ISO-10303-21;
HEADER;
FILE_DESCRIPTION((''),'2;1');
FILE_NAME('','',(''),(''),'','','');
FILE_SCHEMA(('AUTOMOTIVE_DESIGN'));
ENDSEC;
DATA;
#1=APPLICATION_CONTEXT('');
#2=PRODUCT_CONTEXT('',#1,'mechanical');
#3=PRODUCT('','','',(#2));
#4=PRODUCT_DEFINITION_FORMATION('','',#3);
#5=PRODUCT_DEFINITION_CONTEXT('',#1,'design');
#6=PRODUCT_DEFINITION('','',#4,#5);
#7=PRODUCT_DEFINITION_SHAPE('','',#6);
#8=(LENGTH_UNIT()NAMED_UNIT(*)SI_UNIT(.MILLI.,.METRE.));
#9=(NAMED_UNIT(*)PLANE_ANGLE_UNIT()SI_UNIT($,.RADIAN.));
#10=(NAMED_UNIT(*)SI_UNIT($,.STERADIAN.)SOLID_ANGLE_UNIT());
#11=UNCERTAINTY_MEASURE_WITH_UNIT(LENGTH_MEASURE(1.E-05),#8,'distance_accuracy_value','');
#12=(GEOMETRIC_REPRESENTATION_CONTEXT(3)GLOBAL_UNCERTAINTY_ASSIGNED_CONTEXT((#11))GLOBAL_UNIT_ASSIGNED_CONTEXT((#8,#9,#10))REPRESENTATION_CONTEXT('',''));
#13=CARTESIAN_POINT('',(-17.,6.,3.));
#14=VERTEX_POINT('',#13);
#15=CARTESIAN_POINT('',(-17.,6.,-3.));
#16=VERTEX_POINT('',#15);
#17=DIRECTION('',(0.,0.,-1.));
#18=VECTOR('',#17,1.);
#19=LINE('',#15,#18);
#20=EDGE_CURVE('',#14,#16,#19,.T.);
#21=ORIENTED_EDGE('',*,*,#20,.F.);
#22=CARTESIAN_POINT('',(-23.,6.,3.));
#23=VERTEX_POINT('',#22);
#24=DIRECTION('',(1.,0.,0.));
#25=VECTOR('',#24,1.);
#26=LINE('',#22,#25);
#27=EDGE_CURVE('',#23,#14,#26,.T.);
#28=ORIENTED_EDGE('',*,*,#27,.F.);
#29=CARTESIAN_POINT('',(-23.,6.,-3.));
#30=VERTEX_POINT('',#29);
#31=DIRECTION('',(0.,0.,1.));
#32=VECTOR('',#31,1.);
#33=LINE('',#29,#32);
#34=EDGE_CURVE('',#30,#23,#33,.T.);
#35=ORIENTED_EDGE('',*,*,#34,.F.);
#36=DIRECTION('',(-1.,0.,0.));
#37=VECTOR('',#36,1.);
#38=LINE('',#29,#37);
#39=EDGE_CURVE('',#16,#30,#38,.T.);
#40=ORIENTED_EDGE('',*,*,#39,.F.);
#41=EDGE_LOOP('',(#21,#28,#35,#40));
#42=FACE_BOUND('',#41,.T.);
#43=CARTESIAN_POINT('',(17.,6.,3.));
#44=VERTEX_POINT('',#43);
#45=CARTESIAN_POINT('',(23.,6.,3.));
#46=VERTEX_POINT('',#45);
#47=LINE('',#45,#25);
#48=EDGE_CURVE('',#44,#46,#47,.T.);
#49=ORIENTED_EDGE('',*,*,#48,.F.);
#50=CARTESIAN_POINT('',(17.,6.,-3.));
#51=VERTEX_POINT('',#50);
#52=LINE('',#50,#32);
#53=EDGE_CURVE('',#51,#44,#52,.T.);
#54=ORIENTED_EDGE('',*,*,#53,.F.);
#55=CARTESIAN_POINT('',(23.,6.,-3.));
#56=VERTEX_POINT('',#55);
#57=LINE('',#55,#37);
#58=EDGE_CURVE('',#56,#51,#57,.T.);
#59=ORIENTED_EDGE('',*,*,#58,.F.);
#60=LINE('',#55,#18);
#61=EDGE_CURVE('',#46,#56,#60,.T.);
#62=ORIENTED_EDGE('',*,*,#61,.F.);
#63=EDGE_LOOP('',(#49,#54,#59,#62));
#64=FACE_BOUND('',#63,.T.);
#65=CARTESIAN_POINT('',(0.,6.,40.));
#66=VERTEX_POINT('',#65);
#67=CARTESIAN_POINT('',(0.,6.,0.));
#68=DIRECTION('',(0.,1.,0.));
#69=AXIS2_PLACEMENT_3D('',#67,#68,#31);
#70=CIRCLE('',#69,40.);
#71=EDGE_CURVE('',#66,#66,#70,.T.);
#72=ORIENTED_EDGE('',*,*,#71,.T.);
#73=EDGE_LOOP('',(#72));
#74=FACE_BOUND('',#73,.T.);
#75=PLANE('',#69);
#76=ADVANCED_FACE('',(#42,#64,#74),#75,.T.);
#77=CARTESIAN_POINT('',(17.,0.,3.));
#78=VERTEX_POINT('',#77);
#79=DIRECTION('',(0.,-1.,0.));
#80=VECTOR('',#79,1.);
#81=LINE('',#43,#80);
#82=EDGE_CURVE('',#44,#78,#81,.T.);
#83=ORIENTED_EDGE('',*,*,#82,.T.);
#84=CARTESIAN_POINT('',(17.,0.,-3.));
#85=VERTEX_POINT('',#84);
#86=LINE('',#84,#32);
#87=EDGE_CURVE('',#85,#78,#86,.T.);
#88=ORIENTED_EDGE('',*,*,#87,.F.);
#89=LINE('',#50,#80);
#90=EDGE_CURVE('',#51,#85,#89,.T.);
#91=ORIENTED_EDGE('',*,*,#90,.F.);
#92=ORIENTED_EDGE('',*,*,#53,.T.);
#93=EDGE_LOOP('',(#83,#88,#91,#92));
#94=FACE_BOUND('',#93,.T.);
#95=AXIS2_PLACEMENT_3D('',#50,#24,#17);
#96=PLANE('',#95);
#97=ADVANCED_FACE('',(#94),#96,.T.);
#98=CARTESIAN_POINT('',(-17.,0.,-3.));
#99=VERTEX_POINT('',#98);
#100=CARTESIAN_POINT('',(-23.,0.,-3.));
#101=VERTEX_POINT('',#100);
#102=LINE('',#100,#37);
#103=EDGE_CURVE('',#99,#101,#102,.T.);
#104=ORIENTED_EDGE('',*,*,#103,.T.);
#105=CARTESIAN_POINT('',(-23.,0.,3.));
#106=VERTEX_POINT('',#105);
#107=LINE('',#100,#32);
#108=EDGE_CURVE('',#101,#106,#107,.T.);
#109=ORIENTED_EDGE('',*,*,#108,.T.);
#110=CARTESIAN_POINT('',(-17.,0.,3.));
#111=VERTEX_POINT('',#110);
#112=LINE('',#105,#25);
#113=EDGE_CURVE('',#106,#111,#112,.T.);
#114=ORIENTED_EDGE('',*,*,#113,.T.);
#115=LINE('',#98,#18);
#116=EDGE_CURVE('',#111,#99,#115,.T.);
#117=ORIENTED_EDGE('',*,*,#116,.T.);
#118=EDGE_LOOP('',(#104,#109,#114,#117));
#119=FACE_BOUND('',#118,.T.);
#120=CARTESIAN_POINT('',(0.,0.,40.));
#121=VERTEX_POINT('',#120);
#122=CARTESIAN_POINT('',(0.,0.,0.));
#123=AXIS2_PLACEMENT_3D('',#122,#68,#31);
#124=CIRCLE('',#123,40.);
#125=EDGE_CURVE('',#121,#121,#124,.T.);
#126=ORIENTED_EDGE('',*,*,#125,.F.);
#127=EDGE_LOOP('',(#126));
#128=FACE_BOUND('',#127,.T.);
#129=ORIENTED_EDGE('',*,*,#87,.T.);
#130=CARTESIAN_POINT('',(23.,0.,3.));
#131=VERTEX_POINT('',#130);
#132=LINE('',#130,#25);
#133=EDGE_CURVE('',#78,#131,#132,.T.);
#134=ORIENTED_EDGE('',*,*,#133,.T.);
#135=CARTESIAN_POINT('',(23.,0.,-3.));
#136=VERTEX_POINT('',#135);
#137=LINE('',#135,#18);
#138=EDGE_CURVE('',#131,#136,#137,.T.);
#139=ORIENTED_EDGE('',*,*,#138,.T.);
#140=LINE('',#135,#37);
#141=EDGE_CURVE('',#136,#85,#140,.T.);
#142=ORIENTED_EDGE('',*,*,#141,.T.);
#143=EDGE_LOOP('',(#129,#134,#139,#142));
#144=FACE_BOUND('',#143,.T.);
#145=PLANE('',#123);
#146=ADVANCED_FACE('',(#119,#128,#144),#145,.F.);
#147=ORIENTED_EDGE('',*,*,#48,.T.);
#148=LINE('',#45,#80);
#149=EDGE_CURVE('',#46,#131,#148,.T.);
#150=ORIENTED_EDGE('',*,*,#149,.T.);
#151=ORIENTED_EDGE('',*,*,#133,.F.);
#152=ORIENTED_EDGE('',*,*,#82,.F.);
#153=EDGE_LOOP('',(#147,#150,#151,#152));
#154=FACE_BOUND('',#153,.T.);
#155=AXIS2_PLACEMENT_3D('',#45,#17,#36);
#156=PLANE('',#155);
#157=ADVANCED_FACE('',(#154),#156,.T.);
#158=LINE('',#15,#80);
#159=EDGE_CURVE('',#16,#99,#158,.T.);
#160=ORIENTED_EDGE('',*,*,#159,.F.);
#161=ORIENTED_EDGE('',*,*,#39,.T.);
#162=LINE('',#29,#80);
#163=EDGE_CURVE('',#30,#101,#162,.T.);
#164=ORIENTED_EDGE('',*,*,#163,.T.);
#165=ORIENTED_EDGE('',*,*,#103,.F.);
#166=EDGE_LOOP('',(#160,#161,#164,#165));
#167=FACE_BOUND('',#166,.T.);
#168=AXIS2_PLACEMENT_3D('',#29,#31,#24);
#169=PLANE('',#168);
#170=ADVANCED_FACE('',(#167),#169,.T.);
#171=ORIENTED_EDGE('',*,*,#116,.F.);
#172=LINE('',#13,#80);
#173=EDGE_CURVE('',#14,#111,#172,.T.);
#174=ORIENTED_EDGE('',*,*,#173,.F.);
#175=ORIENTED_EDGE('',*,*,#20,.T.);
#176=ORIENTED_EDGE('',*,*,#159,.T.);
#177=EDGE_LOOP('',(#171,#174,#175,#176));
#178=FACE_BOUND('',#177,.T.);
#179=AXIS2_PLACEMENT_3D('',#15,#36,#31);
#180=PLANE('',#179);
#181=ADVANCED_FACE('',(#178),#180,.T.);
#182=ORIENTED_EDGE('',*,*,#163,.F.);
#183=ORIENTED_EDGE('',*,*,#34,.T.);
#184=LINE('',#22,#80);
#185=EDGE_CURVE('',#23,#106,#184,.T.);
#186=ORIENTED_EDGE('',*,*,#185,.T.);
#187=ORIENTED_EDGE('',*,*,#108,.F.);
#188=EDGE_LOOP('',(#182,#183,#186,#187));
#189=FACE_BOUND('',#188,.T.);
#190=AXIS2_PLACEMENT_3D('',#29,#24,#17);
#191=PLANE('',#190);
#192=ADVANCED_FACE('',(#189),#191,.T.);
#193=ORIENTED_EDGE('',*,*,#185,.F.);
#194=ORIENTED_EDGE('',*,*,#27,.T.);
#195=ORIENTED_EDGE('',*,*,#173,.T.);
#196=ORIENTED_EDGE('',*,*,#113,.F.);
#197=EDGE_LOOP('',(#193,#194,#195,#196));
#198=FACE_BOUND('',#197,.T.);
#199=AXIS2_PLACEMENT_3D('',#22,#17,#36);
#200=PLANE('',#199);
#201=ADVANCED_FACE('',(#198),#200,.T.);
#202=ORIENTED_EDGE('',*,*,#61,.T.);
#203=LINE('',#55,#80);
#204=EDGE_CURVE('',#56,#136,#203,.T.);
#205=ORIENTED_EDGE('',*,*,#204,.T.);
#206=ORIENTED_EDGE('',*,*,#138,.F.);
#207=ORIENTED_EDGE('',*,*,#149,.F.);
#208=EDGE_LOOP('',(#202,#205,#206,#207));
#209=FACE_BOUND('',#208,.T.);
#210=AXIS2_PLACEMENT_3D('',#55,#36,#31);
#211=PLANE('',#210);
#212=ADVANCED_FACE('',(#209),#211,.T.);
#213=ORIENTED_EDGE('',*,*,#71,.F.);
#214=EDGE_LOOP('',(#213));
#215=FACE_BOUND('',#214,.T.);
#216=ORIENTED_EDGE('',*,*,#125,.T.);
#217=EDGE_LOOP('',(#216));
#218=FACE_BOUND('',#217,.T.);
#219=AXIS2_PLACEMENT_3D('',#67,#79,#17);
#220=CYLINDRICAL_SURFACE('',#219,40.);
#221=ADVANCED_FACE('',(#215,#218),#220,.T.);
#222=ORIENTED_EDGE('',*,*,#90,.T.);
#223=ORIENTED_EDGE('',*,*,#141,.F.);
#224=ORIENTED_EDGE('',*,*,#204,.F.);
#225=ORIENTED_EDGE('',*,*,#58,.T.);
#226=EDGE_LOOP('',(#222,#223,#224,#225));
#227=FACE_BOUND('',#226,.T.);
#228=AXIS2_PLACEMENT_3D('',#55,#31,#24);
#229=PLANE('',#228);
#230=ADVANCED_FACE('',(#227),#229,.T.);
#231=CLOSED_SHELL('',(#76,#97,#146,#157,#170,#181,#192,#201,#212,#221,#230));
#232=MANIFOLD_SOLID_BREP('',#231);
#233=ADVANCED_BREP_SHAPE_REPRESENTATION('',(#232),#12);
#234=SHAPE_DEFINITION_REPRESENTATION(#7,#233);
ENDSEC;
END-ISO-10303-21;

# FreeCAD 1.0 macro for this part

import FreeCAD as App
import Part
import Sketcher
from FreeCAD import Vector
Q = App.Units.Quantity


def add_polygon(sketch, points):
    """Adds a closed chain of lines whose ends are joined by coincident constraints."""
    first, n = sketch.GeometryCount, len(points)
    for a, b in zip(points, points[1:] + points[:1]):
        sketch.addGeometry(Part.LineSegment(App.Vector(*a, 0), App.Vector(*b, 0)), False)
    for i in range(n):
        sketch.addConstraint(Sketcher.Constraint("Coincident", first + i, 2, first + (i + 1) % n, 1))

doc = App.newDocument("Part")
body = doc.addObject("PartDesign::Body", "Body")

sketch1 = body.newObject("Sketcher::SketchObject", "Sketch")
sketch1.AttachmentSupport = (doc.getObject("XZ_Plane"), [""])
sketch1.MapMode = "FlatFace"
sketch1.addGeometry(Part.Circle(Vector(0, 0, 0), Vector(0, 0, 1), 40), False)
add_polygon(sketch1, [(-17, 3), (-23, 3), (-23, -3), (-17, -3)])
add_polygon(sketch1, [(23, 3), (17, 3), (17, -3), (23, -3)])
sketch1.addConstraint(Sketcher.Constraint("Horizontal", 1))
sketch1.addConstraint(Sketcher.Constraint("Vertical", 2))
sketch1.addConstraint(Sketcher.Constraint("Horizontal", 3))
sketch1.addConstraint(Sketcher.Constraint("Vertical", 4))
sketch1.addConstraint(Sketcher.Constraint("Horizontal", 5))
sketch1.addConstraint(Sketcher.Constraint("Vertical", 6))
sketch1.addConstraint(Sketcher.Constraint("Horizontal", 7))
sketch1.addConstraint(Sketcher.Constraint("Vertical", 8))
sketch1.addConstraint(Sketcher.Constraint("Coincident", 0, 3, -1, 1))
sketch1.addConstraint(Sketcher.Constraint("Symmetric", 3, 2, 5, 2, -1, 1))
sketch1.addConstraint(Sketcher.Constraint("Symmetric", 1, 2, 7, 2, -1, 1))
sketch1.addConstraint(Sketcher.Constraint("Horizontal", 4, 2, 5, 2))
sketch1.addConstraint(Sketcher.Constraint("Equal", 7, 2))
sketch1.addConstraint(Sketcher.Constraint("Diameter", 0, Q("80 mm")))
sketch1.addConstraint(Sketcher.Constraint("DistanceX", 1, 2, 1, 1, Q("6 mm")))
sketch1.addConstraint(Sketcher.Constraint("DistanceX", 1, 2, -1, 1, Q("23 mm")))
pad1 = body.newObject("PartDesign::Pad", "Pad")
pad1.Profile = sketch1
pad1.Length = 6
pad1.Reversed = True

doc.recompute()
